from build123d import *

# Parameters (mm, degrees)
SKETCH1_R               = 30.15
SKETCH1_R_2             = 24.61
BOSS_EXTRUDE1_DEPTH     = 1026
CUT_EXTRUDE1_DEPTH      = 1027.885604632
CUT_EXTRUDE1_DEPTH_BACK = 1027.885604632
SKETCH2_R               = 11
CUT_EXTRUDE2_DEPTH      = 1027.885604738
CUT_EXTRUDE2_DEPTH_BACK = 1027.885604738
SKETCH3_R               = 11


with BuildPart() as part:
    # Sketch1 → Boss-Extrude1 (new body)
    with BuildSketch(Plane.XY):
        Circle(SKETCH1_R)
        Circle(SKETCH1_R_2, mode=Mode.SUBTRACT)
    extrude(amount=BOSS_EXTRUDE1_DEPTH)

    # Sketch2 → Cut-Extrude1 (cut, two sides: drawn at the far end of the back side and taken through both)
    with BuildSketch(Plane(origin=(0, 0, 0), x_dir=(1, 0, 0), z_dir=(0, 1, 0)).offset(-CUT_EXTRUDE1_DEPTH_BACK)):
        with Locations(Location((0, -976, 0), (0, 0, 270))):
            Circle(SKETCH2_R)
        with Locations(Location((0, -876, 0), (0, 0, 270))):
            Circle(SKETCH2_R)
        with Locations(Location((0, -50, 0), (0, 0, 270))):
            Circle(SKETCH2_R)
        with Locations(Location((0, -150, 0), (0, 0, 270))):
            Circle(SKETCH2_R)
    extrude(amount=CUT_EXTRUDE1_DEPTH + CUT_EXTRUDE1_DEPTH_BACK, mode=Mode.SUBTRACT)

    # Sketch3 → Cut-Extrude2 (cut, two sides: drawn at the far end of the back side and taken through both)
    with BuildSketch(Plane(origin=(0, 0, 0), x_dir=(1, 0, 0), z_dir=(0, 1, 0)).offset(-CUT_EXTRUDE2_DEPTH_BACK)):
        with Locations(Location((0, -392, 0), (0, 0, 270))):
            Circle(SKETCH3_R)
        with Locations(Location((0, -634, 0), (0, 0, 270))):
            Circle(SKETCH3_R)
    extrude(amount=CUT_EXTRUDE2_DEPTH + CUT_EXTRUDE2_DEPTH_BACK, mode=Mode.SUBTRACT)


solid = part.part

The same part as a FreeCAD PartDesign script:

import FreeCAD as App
import Part
import Sketcher

doc = App.newDocument("Part")
body = doc.addObject("PartDesign::Body", "Body")

# Sketch on XY plane
sketch1 = doc.addObject("Sketcher::SketchObject", "Sketch")
body.addObject(sketch1)
sketch1.AttachmentSupport = (doc.XY_Plane, [""])
sketch1.MapMode = "FlatFace"
sketch1.addGeometry(Part.Circle(App.Vector(0, 0, 0), App.Vector(0, 0, 1), 30), False)
sketch1.addGeometry(Part.Circle(App.Vector(0, 0, 0), App.Vector(0, 0, 1), 25), False)
sketch1.addConstraint(Sketcher.Constraint("Coincident", 0, 3, -1, 1))
sketch1.addConstraint(Sketcher.Constraint("Coincident", 1, 3, -1, 1))
sketch1.addConstraint(Sketcher.Constraint("Diameter", 0, 60.3))
sketch1.addConstraint(Sketcher.Constraint("Diameter", 1, 49.22))
pad1 = doc.addObject("PartDesign::Pad", "Pad")
body.addObject(pad1)
pad1.Profile = sketch1
pad1.Length = 1026

# Sketch on XZ plane
sketch2 = doc.addObject("Sketcher::SketchObject", "Sketch001")
body.addObject(sketch2)
sketch2.AttachmentSupport = (doc.XZ_Plane, [""])
sketch2.MapMode = "FlatFace"
sketch2.addGeometry(Part.Circle(App.Vector(0, 976, 0), App.Vector(0, 0, 1), 11), False)
sketch2.addGeometry(Part.Circle(App.Vector(0, 876, 0), App.Vector(0, 0, 1), 11), False)
sketch2.addGeometry(Part.Circle(App.Vector(0, 50, 0), App.Vector(0, 0, 1), 11), False)
sketch2.addGeometry(Part.Circle(App.Vector(0, 150, 0), App.Vector(0, 0, 1), 11), False)
sketch2.addConstraint(Sketcher.Constraint("Equal", 0, 1))
sketch2.addConstraint(Sketcher.Constraint("Equal", 1, 2))
sketch2.addConstraint(Sketcher.Constraint("Equal", 2, 3))
sketch2.addConstraint(Sketcher.Constraint("PointOnObject", 0, 3, -2))
sketch2.addConstraint(Sketcher.Constraint("PointOnObject", 1, 3, -2))
sketch2.addConstraint(Sketcher.Constraint("PointOnObject", 2, 3, -2))
sketch2.addConstraint(Sketcher.Constraint("PointOnObject", 3, 3, -2))
sketch2.addConstraint(Sketcher.Constraint("Diameter", 0, 22.0))
sketch2.addConstraint(Sketcher.Constraint("DistanceY", -1, 1, 0, 3, 976.0))
sketch2.addConstraint(Sketcher.Constraint("DistanceY", -1, 1, 1, 3, 876.0))
sketch2.addConstraint(Sketcher.Constraint("DistanceY", -1, 1, 2, 3, 50.0))
sketch2.addConstraint(Sketcher.Constraint("DistanceY", -1, 1, 3, 3, 150.0))
pocket1 = doc.addObject("PartDesign::Pocket", "Pocket")
body.addObject(pocket1)
pocket1.Profile = sketch2
pocket1.Type = "ThroughAll"
pocket1.Midplane = True

# Sketch on XZ plane
sketch3 = doc.addObject("Sketcher::SketchObject", "Sketch002")
body.addObject(sketch3)
sketch3.AttachmentSupport = (doc.XZ_Plane, [""])
sketch3.MapMode = "FlatFace"
sketch3.addGeometry(Part.Circle(App.Vector(0, 392, 0), App.Vector(0, 0, 1), 11), False)
sketch3.addGeometry(Part.Circle(App.Vector(0, 634, 0), App.Vector(0, 0, 1), 11), False)
sketch3.addConstraint(Sketcher.Constraint("Equal", 0, 1))
sketch3.addConstraint(Sketcher.Constraint("PointOnObject", 0, 3, -2))
sketch3.addConstraint(Sketcher.Constraint("PointOnObject", 1, 3, -2))
sketch3.addConstraint(Sketcher.Constraint("Diameter", 0, 22.0))
sketch3.addConstraint(Sketcher.Constraint("DistanceY", -1, 1, 0, 3, 392.0))
sketch3.addConstraint(Sketcher.Constraint("DistanceY", -1, 1, 1, 3, 634.0))
pocket2 = doc.addObject("PartDesign::Pocket", "Pocket001")
body.addObject(pocket2)
pocket2.Profile = sketch3
pocket2.Type = "ThroughAll"
pocket2.Midplane = True

doc.recompute()
